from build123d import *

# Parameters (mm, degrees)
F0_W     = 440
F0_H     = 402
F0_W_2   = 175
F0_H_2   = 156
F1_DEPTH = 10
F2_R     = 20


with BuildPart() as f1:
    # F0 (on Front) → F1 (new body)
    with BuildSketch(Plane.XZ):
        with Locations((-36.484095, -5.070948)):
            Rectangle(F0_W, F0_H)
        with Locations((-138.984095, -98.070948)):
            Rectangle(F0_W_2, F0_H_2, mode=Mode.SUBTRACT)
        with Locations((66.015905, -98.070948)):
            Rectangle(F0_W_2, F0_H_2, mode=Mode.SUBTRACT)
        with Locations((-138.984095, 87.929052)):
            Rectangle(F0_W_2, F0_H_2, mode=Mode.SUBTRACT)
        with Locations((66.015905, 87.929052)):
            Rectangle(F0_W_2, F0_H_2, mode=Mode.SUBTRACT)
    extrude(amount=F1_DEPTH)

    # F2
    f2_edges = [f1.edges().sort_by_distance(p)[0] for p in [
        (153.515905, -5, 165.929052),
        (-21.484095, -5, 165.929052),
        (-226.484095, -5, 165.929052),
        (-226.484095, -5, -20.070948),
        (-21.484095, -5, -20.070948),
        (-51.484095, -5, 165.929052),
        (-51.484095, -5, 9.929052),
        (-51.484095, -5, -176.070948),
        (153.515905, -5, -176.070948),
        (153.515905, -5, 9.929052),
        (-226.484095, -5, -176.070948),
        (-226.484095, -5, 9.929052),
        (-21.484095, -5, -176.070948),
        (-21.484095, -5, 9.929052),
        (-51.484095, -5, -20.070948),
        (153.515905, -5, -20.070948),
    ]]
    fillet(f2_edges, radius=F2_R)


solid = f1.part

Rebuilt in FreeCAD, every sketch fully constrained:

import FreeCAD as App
import Part
import Sketcher
Q = App.Units.Quantity


def edges_at(feature, points):
    """Names of the edges that pass closest to the given points."""
    edges = feature.Shape.Edges
    near = lambda p: min(range(len(edges)), key=lambda i: edges[i].distToShape(Part.Vertex(*p))[0])
    return sorted({f"Edge{near(p) + 1}" for p in points})

doc = App.newDocument("Part")
body = doc.addObject("PartDesign::Body", "Body")

# Sketch on XZ plane
sketch1 = body.newObject("Sketcher::SketchObject", "Sketch")
sketch1.AttachmentSupport = (doc.getObject("XZ_Plane"), [""])
sketch1.MapMode = "FlatFace"
sketch1.addGeometry([
    Part.LineSegment(App.Vector(-256, 196, 0), App.Vector(-256, -206, 0)),  # 0
    Part.LineSegment(App.Vector(-256, -206, 0), App.Vector(184, -206, 0)),  # 1
    Part.LineSegment(App.Vector(184, -206, 0), App.Vector(184, 196, 0)),  # 2
    Part.LineSegment(App.Vector(184, 196, 0), App.Vector(-256, 196, 0)),  # 3
    Part.LineSegment(App.Vector(-51, -176, 0), App.Vector(-226, -176, 0)),  # 4
    Part.LineSegment(App.Vector(-226, -176, 0), App.Vector(-226, -20, 0)),  # 5
    Part.LineSegment(App.Vector(-226, -20, 0), App.Vector(-51, -20, 0)),  # 6
    Part.LineSegment(App.Vector(-51, -20, 0), App.Vector(-51, -176, 0)),  # 7
    Part.LineSegment(App.Vector(154, -176, 0), App.Vector(-21, -176, 0)),  # 8
    Part.LineSegment(App.Vector(-21, -176, 0), App.Vector(-21, -20, 0)),  # 9
    Part.LineSegment(App.Vector(-21, -20, 0), App.Vector(154, -20, 0)),  # 10
    Part.LineSegment(App.Vector(154, -20, 0), App.Vector(154, -176, 0)),  # 11
    Part.LineSegment(App.Vector(-51, 10, 0), App.Vector(-226, 10, 0)),  # 12
    Part.LineSegment(App.Vector(-226, 10, 0), App.Vector(-226, 166, 0)),  # 13
    Part.LineSegment(App.Vector(-226, 166, 0), App.Vector(-51, 166, 0)),  # 14
    Part.LineSegment(App.Vector(-51, 166, 0), App.Vector(-51, 10, 0)),  # 15
    Part.LineSegment(App.Vector(154, 10, 0), App.Vector(-21, 10, 0)),  # 16
    Part.LineSegment(App.Vector(-21, 10, 0), App.Vector(-21, 166, 0)),  # 17
    Part.LineSegment(App.Vector(-21, 166, 0), App.Vector(154, 166, 0)),  # 18
    Part.LineSegment(App.Vector(154, 166, 0), App.Vector(154, 10, 0)),  # 19
], False)
sketch1.addConstraint([
    Sketcher.Constraint("Coincident", 0, 2, 1, 1),
    Sketcher.Constraint("Coincident", 1, 2, 2, 1),
    Sketcher.Constraint("Coincident", 2, 2, 3, 1),
    Sketcher.Constraint("Coincident", 3, 2, 0, 1),
    Sketcher.Constraint("Coincident", 4, 2, 5, 1),
    Sketcher.Constraint("Coincident", 5, 2, 6, 1),
    Sketcher.Constraint("Coincident", 6, 2, 7, 1),
    Sketcher.Constraint("Coincident", 7, 2, 4, 1),
    Sketcher.Constraint("Coincident", 8, 2, 9, 1),
    Sketcher.Constraint("Coincident", 9, 2, 10, 1),
    Sketcher.Constraint("Coincident", 10, 2, 11, 1),
    Sketcher.Constraint("Coincident", 11, 2, 8, 1),
    Sketcher.Constraint("Coincident", 12, 2, 13, 1),
    Sketcher.Constraint("Coincident", 13, 2, 14, 1),
    Sketcher.Constraint("Coincident", 14, 2, 15, 1),
    Sketcher.Constraint("Coincident", 15, 2, 12, 1),
    Sketcher.Constraint("Coincident", 16, 2, 17, 1),
    Sketcher.Constraint("Coincident", 17, 2, 18, 1),
    Sketcher.Constraint("Coincident", 18, 2, 19, 1),
    Sketcher.Constraint("Coincident", 19, 2, 16, 1),
    Sketcher.Constraint("Vertical", 0),
    Sketcher.Constraint("Horizontal", 1),
    Sketcher.Constraint("Vertical", 2),
    Sketcher.Constraint("Horizontal", 3),
    Sketcher.Constraint("Horizontal", 4),
    Sketcher.Constraint("Vertical", 5),
    Sketcher.Constraint("Horizontal", 6),
    Sketcher.Constraint("Vertical", 7),
    Sketcher.Constraint("Horizontal", 8),
    Sketcher.Constraint("Vertical", 9),
    Sketcher.Constraint("Horizontal", 10),
    Sketcher.Constraint("Vertical", 11),
    Sketcher.Constraint("Horizontal", 12),
    Sketcher.Constraint("Vertical", 13),
    Sketcher.Constraint("Horizontal", 14),
    Sketcher.Constraint("Vertical", 15),
    Sketcher.Constraint("Horizontal", 16),
    Sketcher.Constraint("Vertical", 17),
    Sketcher.Constraint("Horizontal", 18),
    Sketcher.Constraint("Vertical", 19),
    Sketcher.Constraint("Horizontal", 7, 2, 8, 2),
    Sketcher.Constraint("Horizontal", 6, 2, 9, 2),
    Sketcher.Constraint("Horizontal", 15, 2, 16, 2),
    Sketcher.Constraint("Horizontal", 14, 2, 17, 2),
    Sketcher.Constraint("Vertical", 5, 2, 12, 2),
    Sketcher.Constraint("Vertical", 7, 2, 14, 2),
    Sketcher.Constraint("Vertical", 9, 2, 16, 2),
    Sketcher.Constraint("Vertical", 11, 2, 18, 2),
    Sketcher.Constraint("Equal", 6, 8),
    Sketcher.Constraint("Equal", 11, 13),
    Sketcher.Constraint("DistanceX", 1, 1, 1, 2, Q("440 mm")),
    Sketcher.Constraint("DistanceX", 4, 2, 4, 1, Q("175 mm")),
    Sketcher.Constraint("DistanceY", 0, 2, 0, 1, Q("402 mm")),
    Sketcher.Constraint("DistanceY", 5, 1, 5, 2, Q("156 mm")),
    Sketcher.Constraint("DistanceX", 0, 2, 4, 2, Q("30 mm")),
    Sketcher.Constraint("DistanceY", 0, 2, 4, 2, Q("30 mm")),
    Sketcher.Constraint("DistanceX", 7, 2, 8, 2, Q("30 mm")),
    Sketcher.Constraint("DistanceY", 5, 2, 12, 2, Q("30 mm")),
    Sketcher.Constraint("DistanceY", 5, 2, -1, 1, Q("20.070948 mm")),
    Sketcher.Constraint("DistanceX", 0, 2, -1, 1, Q("256.484095 mm")),
])
pad1 = body.newObject("PartDesign::Pad", "Pad")
pad1.Profile = sketch1
pad1.Length = 10
doc.recompute()

fillet = body.newObject("PartDesign::Fillet", "Fillet")
fillet.Base = (pad1, edges_at(pad1, [
    (153.516, -5, 165.929),
    (-21.484, -5, 165.929),
    (-226.484, -5, 165.929),
    (-226.484, -5, -20.071),
    (-21.484, -5, -20.071),
    (-51.484, -5, 165.929),
    (-51.484, -5, 9.929),
    (-51.484, -5, -176.071),
    (153.516, -5, -176.071),
    (153.516, -5, 9.929),
    (-226.484, -5, -176.071),
    (-226.484, -5, 9.929),
    (-21.484, -5, -176.071),
    (-21.484, -5, 9.929),
    (-51.484, -5, -20.071),
    (153.516, -5, -20.071),
]))
fillet.Radius = 20

doc.recompute()
